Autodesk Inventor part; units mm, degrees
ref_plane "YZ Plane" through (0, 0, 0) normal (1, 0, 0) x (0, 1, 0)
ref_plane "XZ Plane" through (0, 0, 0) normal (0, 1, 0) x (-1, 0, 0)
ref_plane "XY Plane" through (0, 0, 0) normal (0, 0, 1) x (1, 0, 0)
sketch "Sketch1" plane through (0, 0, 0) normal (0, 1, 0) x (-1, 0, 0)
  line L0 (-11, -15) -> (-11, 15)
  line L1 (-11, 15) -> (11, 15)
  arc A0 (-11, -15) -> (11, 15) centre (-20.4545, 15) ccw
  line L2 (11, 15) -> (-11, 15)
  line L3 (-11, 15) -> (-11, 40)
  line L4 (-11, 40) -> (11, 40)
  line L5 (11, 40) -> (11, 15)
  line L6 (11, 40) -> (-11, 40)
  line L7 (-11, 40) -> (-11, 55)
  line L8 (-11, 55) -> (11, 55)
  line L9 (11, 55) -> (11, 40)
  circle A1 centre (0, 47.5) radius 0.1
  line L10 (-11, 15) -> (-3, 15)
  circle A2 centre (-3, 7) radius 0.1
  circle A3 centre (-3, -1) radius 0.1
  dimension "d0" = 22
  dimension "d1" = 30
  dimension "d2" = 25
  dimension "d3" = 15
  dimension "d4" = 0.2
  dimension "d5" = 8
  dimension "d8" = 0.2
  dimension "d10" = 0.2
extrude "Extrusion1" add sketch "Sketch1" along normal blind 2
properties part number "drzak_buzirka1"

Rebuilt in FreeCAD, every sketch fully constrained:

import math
import FreeCAD as App
import Part
import Sketcher
Q = App.Units.Quantity

doc = App.newDocument("Part")
body = doc.addObject("PartDesign::Body", "Body")

sketch1 = doc.addObject("Sketcher::SketchObject", "Sketch")
body.addObject(sketch1)
sketch1.AttachmentSupport = (doc.XZ_Plane, [""])
sketch1.MapMode = "FlatFace"
sketch1.addGeometry(Part.ArcOfCircle(Part.Circle(App.Vector(20.4545, 15, 0), App.Vector(0, 0, 1), 31.454532), math.radians(180), math.radians(252.507754)), False)
sketch1.addGeometry(Part.LineSegment(App.Vector(-11, 15, 0), App.Vector(-11, 55, 0)), False)
sketch1.addGeometry(Part.LineSegment(App.Vector(-11, 55, 0), App.Vector(11, 55, 0)), False)
sketch1.addGeometry(Part.LineSegment(App.Vector(11, 55, 0), App.Vector(11, -15, 0)), False)
sketch1.addGeometry(Part.Circle(App.Vector(3, -1, 0), App.Vector(0, 0, 1), 0.1), False)
sketch1.addGeometry(Part.Circle(App.Vector(3, 7, 0), App.Vector(0, 0, 1), 0.1), False)
sketch1.addGeometry(Part.Circle(App.Vector(0, 47.5, 0), App.Vector(0, 0, 1), 0.1), False)
sketch1.addConstraint(Sketcher.Constraint("Tangent", 0, 1, 1, 1))
sketch1.addConstraint(Sketcher.Constraint("Coincident", 1, 2, 2, 1))
sketch1.addConstraint(Sketcher.Constraint("Coincident", 2, 2, 3, 1))
sketch1.addConstraint(Sketcher.Constraint("Coincident", 3, 2, 0, 2))
sketch1.addConstraint(Sketcher.Constraint("Vertical", 1))
sketch1.addConstraint(Sketcher.Constraint("Horizontal", 2))
sketch1.addConstraint(Sketcher.Constraint("Vertical", 3))
sketch1.addConstraint(Sketcher.Constraint("Equal", 4, 5))
sketch1.addConstraint(Sketcher.Constraint("Equal", 5, 6))
sketch1.addConstraint(Sketcher.Constraint("Symmetric", 0, 1, 3, 2, -1, 1))
sketch1.addConstraint(Sketcher.Constraint("PointOnObject", 6, 3, -2))
sketch1.addConstraint(Sketcher.Constraint("Vertical", 4, 3, 5, 3))
sketch1.addConstraint(Sketcher.Constraint("Diameter", 4, Q("0.2 mm")))
sketch1.addConstraint(Sketcher.Constraint("DistanceX", 2, 1, 2, 2, Q("22 mm")))
sketch1.addConstraint(Sketcher.Constraint("DistanceY", -1, 1, 0, 3, Q("15 mm")))
sketch1.addConstraint(Sketcher.Constraint("DistanceY", 4, 3, 5, 3, Q("8 mm")))
sketch1.addConstraint(Sketcher.Constraint("DistanceY", 5, 3, 0, 3, Q("8 mm")))
sketch1.addConstraint(Sketcher.Constraint("DistanceX", 5, 3, 2, 2, Q("8 mm")))
sketch1.addConstraint(Sketcher.Constraint("DistanceY", 1, 1, 1, 2, Q("40 mm")))
sketch1.addConstraint(Sketcher.Constraint("DistanceY", -1, 1, 6, 3, Q("47.5 mm")))
pad1 = doc.addObject("PartDesign::Pad", "Pad")
body.addObject(pad1)
pad1.Profile = sketch1
pad1.Length = 2
pad1.Reversed = True

doc.recompute()
